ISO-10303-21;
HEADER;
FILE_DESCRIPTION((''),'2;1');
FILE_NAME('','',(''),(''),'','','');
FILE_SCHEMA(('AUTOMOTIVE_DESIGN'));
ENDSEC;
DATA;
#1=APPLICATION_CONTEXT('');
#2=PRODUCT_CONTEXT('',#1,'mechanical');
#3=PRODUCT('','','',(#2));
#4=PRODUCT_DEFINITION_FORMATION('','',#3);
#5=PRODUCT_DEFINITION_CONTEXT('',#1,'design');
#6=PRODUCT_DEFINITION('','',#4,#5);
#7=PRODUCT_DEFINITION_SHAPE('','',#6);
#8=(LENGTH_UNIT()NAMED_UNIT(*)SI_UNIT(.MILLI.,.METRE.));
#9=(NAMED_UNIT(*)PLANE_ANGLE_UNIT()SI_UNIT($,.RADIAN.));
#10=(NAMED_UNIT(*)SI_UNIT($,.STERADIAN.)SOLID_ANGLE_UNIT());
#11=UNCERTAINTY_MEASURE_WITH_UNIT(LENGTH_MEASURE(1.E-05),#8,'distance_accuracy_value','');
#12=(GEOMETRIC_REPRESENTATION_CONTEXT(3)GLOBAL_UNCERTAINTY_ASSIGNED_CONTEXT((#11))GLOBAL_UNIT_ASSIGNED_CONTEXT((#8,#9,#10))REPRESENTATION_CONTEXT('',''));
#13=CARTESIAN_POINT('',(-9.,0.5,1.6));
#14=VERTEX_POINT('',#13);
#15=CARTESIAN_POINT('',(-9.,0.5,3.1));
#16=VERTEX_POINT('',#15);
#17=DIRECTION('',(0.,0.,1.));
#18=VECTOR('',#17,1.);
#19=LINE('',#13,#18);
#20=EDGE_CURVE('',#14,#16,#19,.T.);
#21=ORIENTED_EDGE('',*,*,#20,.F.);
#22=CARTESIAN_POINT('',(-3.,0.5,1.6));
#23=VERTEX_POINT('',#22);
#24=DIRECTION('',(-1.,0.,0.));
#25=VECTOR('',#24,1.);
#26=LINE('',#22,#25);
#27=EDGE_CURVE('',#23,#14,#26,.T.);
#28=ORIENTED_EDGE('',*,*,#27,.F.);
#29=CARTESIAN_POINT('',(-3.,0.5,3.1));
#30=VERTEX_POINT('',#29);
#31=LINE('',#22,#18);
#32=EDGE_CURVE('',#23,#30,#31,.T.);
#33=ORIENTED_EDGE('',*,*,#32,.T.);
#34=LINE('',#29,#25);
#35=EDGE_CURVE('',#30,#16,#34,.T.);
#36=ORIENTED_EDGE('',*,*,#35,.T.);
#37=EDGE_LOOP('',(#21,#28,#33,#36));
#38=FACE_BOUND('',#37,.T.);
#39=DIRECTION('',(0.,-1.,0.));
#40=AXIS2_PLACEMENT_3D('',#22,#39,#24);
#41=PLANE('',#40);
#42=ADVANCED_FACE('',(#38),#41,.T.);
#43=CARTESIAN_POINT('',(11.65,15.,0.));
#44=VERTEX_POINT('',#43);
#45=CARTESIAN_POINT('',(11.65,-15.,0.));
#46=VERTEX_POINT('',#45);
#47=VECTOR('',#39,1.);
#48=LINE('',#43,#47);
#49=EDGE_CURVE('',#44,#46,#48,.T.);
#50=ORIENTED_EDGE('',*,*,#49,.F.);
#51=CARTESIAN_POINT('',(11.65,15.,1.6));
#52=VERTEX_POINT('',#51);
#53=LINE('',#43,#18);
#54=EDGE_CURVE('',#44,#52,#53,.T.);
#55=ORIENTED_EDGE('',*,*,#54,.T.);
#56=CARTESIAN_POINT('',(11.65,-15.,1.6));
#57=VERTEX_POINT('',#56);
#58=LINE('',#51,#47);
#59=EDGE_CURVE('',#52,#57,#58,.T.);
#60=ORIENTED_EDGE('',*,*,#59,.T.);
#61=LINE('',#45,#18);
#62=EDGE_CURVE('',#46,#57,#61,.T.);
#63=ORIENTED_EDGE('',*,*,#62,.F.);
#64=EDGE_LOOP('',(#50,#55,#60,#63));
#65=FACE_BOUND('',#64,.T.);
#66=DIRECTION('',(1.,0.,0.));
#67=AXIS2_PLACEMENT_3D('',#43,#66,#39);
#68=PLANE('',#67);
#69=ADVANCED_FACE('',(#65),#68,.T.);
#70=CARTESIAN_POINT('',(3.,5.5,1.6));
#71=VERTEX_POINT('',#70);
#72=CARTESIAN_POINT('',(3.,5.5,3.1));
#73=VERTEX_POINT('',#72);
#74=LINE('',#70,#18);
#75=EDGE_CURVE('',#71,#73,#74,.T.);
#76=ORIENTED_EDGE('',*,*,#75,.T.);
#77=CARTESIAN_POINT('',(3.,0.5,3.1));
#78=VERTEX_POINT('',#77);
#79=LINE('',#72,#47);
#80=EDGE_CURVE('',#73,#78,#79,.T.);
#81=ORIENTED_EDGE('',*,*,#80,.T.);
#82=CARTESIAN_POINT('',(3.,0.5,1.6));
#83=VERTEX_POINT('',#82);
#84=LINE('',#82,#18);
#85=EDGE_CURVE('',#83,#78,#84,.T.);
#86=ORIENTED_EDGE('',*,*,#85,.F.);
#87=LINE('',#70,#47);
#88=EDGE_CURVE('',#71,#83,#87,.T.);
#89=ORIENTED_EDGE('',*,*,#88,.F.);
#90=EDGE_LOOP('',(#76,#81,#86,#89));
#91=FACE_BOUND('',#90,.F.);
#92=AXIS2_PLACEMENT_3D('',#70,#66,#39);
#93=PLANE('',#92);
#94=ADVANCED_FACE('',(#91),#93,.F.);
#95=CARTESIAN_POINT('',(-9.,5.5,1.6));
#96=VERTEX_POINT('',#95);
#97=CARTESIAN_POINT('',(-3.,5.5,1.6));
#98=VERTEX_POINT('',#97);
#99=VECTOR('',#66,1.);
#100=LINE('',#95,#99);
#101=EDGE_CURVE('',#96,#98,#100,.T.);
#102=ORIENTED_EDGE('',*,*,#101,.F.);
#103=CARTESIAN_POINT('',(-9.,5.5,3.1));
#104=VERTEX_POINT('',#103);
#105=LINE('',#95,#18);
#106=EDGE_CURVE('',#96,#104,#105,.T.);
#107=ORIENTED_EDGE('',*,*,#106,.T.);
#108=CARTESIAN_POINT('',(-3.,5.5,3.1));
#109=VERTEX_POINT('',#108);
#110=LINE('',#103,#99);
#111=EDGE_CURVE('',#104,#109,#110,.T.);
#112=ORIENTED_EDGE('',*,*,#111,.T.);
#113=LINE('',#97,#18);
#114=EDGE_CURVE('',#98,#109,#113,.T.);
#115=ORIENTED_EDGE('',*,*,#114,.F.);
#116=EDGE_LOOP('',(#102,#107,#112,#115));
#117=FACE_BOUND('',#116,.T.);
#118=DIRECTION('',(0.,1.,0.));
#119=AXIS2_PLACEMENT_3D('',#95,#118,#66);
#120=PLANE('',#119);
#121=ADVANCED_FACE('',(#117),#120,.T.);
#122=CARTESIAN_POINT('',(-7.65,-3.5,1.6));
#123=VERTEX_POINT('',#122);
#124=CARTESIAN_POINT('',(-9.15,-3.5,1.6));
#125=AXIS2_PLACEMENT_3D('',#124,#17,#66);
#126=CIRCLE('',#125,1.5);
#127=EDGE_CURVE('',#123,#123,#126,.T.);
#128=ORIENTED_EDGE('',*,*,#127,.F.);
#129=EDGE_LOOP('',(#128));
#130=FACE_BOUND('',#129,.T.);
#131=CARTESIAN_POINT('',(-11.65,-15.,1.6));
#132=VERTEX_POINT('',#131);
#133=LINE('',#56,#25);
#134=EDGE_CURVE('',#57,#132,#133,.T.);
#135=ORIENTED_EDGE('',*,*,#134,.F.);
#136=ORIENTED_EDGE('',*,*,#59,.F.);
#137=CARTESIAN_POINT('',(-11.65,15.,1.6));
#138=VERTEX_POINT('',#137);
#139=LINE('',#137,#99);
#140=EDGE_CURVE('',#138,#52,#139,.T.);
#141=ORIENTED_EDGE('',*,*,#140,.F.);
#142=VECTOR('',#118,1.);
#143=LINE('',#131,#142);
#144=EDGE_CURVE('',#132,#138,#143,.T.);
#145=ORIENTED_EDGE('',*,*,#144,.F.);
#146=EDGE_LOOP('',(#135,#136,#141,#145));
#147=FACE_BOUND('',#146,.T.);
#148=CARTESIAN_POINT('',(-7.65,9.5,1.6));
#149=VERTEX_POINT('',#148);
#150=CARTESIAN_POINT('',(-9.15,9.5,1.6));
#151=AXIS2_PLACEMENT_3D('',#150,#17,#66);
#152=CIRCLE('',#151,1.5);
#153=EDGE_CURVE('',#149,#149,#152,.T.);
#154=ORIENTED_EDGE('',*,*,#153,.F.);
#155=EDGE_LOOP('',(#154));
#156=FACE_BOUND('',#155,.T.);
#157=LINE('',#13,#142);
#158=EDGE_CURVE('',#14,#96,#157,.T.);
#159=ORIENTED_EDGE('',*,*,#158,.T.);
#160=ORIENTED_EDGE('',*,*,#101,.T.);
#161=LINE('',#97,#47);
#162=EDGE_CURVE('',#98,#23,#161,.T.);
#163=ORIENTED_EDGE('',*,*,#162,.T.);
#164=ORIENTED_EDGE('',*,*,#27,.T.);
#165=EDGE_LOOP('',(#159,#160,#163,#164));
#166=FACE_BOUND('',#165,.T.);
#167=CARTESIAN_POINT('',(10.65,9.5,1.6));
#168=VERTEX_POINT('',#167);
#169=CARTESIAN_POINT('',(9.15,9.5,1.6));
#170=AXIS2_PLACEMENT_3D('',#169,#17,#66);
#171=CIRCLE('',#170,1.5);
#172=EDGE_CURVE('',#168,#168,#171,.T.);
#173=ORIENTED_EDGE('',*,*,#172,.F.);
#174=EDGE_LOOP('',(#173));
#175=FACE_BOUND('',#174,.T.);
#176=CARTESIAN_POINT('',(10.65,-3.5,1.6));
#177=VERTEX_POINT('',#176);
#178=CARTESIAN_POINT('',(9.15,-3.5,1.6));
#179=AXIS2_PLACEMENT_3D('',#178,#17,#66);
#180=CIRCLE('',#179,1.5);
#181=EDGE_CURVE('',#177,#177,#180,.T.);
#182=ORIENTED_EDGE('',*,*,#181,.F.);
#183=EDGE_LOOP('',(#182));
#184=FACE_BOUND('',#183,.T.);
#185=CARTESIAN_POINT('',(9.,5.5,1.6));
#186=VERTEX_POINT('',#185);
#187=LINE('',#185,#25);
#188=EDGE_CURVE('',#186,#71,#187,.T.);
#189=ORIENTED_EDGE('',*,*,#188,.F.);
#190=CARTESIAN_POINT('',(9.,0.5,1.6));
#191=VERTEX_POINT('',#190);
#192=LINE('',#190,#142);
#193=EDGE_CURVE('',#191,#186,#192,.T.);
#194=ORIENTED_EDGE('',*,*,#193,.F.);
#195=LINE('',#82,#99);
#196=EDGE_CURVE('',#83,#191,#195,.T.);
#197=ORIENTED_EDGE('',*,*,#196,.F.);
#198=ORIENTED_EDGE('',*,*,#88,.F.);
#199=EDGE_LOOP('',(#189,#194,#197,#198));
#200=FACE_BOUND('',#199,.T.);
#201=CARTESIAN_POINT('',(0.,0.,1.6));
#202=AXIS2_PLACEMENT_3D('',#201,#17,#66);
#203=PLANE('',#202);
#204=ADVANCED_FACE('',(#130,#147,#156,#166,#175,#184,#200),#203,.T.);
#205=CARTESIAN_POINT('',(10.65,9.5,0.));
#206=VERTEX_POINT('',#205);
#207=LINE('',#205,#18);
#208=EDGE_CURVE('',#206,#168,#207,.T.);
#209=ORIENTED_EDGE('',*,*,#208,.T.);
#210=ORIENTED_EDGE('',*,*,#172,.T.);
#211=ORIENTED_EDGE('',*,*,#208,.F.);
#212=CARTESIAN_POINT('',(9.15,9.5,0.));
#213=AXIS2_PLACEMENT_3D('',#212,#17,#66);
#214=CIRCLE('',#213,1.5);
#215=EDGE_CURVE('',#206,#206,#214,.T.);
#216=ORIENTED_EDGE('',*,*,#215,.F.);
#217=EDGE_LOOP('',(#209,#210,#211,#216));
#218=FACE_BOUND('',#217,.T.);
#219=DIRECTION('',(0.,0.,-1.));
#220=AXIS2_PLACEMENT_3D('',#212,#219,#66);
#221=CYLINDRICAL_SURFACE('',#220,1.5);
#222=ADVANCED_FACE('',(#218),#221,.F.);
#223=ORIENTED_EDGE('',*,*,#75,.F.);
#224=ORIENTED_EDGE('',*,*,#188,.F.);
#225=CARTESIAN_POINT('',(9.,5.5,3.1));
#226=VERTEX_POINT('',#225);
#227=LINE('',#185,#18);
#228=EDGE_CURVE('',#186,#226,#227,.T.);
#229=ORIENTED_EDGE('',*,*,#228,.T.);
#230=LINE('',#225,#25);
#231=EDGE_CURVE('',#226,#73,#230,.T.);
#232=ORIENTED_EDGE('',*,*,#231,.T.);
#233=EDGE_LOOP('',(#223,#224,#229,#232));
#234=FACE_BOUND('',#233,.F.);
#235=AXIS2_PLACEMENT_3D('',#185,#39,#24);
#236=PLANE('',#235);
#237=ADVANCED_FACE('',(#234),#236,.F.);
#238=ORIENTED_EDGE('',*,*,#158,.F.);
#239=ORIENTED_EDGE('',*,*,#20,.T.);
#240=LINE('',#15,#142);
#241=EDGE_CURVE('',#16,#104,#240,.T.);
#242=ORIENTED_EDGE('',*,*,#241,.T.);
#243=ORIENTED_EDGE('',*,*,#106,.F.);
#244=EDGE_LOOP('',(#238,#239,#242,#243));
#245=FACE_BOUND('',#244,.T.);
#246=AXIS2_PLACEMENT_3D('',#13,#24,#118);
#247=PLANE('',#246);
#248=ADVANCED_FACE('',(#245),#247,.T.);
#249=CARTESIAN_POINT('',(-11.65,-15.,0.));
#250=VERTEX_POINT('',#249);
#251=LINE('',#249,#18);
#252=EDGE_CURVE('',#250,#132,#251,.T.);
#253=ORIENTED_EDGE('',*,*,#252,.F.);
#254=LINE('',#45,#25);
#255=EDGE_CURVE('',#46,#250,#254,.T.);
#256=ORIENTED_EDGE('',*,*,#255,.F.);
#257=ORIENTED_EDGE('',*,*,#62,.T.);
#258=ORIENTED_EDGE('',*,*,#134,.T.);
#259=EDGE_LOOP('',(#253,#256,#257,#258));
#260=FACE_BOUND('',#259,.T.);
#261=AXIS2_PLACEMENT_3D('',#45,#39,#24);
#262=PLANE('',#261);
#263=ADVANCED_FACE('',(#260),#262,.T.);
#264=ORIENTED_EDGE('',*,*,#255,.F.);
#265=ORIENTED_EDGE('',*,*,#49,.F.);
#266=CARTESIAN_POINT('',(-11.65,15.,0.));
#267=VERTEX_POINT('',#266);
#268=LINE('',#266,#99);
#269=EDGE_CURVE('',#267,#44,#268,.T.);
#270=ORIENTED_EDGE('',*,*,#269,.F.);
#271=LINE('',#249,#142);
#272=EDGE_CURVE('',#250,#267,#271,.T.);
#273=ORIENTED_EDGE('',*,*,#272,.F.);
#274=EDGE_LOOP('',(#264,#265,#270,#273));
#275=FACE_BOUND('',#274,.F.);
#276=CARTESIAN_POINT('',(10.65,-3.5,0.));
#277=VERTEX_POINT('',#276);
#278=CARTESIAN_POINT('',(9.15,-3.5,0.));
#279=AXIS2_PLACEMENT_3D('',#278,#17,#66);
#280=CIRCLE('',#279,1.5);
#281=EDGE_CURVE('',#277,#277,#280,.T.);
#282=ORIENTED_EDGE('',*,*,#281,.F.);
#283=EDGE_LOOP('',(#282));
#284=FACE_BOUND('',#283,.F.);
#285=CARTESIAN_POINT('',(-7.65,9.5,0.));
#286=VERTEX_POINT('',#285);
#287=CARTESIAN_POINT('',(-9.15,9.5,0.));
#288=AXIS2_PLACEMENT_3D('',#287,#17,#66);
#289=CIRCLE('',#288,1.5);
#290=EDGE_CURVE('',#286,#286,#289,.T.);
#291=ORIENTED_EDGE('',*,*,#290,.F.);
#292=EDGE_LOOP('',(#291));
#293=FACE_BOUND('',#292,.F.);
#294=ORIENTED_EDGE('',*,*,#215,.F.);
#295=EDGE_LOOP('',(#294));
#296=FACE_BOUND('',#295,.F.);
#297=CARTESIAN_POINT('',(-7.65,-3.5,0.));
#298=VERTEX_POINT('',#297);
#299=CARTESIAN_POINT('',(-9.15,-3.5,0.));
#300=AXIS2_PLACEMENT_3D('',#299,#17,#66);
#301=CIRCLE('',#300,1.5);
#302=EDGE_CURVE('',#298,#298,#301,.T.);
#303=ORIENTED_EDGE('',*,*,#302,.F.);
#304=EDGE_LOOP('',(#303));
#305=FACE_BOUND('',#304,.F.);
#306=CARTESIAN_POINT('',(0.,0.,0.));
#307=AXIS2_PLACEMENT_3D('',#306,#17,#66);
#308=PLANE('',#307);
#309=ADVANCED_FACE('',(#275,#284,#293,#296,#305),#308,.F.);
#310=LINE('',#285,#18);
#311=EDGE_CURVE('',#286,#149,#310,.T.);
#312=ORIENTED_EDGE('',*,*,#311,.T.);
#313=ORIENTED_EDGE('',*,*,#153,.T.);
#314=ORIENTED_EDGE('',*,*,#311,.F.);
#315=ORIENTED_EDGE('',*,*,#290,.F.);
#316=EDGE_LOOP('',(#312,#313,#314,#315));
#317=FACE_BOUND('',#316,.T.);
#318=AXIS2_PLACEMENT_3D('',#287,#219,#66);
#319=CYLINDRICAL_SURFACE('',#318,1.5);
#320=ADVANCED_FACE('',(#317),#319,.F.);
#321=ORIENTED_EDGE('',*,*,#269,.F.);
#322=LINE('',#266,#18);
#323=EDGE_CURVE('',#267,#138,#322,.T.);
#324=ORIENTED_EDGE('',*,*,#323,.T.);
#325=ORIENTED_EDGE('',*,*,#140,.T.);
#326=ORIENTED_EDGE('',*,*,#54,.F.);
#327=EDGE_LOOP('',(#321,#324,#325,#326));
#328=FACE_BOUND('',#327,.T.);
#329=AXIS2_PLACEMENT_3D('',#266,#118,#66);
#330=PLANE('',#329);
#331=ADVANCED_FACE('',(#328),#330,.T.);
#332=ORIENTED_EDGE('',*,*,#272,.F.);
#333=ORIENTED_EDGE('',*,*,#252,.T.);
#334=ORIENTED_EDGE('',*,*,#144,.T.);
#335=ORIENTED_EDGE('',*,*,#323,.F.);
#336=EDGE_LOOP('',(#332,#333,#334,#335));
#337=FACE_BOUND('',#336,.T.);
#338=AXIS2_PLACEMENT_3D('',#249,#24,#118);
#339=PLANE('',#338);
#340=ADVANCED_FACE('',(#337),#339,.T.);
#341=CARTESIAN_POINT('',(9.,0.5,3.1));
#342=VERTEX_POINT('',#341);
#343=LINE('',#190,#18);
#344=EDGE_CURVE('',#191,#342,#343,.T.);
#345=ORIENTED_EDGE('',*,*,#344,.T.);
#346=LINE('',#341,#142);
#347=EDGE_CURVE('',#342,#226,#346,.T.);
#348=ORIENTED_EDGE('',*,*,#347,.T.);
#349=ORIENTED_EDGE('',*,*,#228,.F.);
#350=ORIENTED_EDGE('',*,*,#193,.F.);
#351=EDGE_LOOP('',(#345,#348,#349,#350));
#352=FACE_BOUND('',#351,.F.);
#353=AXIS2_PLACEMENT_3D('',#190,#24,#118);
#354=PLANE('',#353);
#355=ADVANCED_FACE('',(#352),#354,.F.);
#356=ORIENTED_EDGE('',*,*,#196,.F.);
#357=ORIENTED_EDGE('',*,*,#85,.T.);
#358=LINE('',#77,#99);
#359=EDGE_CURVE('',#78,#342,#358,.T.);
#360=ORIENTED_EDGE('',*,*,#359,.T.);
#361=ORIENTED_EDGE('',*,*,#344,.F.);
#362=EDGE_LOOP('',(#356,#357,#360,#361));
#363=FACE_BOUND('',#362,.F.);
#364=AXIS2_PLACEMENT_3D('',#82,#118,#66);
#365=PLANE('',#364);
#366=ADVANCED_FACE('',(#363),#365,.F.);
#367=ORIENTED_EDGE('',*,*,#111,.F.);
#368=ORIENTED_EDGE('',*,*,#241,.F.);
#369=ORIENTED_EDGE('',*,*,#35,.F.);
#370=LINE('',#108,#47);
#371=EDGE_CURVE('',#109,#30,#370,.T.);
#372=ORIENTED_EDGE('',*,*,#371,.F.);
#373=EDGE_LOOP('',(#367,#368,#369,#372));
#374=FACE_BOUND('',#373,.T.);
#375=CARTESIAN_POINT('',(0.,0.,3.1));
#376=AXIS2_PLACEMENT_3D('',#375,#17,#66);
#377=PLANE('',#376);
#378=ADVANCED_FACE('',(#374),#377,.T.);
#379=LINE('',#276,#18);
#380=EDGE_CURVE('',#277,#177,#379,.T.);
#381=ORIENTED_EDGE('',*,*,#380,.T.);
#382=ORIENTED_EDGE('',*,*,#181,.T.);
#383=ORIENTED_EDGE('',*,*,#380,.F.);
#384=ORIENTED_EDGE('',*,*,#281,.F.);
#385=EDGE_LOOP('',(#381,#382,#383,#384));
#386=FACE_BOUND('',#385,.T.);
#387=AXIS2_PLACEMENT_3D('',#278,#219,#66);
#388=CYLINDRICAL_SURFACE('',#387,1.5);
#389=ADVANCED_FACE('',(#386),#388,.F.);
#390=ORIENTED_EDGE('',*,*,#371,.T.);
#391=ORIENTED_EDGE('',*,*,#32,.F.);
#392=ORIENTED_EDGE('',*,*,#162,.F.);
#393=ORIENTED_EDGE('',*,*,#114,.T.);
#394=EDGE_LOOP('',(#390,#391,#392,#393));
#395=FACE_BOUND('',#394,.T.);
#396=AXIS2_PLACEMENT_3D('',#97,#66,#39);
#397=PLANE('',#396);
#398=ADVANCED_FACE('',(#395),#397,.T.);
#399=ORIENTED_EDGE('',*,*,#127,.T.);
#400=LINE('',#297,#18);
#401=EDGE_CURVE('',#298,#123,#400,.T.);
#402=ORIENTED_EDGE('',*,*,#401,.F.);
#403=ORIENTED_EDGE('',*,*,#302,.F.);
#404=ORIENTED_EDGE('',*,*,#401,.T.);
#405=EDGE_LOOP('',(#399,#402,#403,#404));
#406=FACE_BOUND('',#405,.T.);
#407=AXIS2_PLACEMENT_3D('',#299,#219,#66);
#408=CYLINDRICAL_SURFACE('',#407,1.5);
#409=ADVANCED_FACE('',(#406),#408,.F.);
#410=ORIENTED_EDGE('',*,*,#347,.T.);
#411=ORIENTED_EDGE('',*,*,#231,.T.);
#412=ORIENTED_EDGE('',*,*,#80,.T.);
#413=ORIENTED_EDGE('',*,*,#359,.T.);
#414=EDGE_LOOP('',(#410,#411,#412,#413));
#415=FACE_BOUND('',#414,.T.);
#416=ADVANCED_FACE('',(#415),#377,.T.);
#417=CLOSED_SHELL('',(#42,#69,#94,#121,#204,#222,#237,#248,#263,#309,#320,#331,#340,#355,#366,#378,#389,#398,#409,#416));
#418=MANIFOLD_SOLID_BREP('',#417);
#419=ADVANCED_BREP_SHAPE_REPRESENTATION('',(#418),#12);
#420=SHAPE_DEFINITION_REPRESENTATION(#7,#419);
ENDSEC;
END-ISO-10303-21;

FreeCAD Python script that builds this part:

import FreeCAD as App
import Part
import Sketcher


def add_polygon(sketch, points):
    """Adds a closed chain of lines whose ends are joined by coincident constraints."""
    first, n = sketch.GeometryCount, len(points)
    for a, b in zip(points, points[1:] + points[:1]):
        sketch.addGeometry(Part.LineSegment(App.Vector(*a, 0), App.Vector(*b, 0)), False)
    for i in range(n):
        sketch.addConstraint(Sketcher.Constraint("Coincident", first + i, 2, first + (i + 1) % n, 1))

doc = App.newDocument("Part")
body = doc.addObject("PartDesign::Body", "Body")

sketch1 = doc.addObject("Sketcher::SketchObject", "Sketch")
body.addObject(sketch1)
sketch1.AttachmentSupport = (doc.XY_Plane, [""])
sketch1.MapMode = "FlatFace"
add_polygon(sketch1, [(11.65, 15), (-11.65, 15), (-11.65, -15), (11.65, -15)])
sketch1.addGeometry(Part.Circle(App.Vector(-9.15, -3.5, 0), App.Vector(0, 0, 1), 1.5), False)
sketch1.addGeometry(Part.Circle(App.Vector(9.15, -3.5, 0), App.Vector(0, 0, 1), 1.5), False)
sketch1.addGeometry(Part.Circle(App.Vector(-9.15, 9.5, 0), App.Vector(0, 0, 1), 1.5), False)
sketch1.addGeometry(Part.Circle(App.Vector(9.15, 9.5, 0), App.Vector(0, 0, 1), 1.5), False)
sketch1.addConstraint(Sketcher.Constraint("Horizontal", 0))
sketch1.addConstraint(Sketcher.Constraint("Vertical", 1))
sketch1.addConstraint(Sketcher.Constraint("Horizontal", 2))
sketch1.addConstraint(Sketcher.Constraint("Vertical", 3))
sketch1.addConstraint(Sketcher.Constraint("Equal", 4, 5))
sketch1.addConstraint(Sketcher.Constraint("Equal", 5, 6))
sketch1.addConstraint(Sketcher.Constraint("Equal", 6, 7))
sketch1.addConstraint(Sketcher.Constraint("Symmetric", 0, 2, 2, 2, -1, 1))
sketch1.addConstraint(Sketcher.Constraint("Symmetric", 4, 3, 5, 3, -2))
sketch1.addConstraint(Sketcher.Constraint("Symmetric", 6, 3, 7, 3, -2))
sketch1.addConstraint(Sketcher.Constraint("Vertical", 4, 3, 6, 3))
sketch1.addConstraint(Sketcher.Constraint("Diameter", 4, 3.0))
sketch1.addConstraint(Sketcher.Constraint("DistanceY", 1, 2, 1, 1, 30.0))
sketch1.addConstraint(Sketcher.Constraint("DistanceX", 0, 2, 0, 1, 23.3))
sketch1.addConstraint(Sketcher.Constraint("DistanceY", 4, 3, 6, 3, 13.0))
sketch1.addConstraint(Sketcher.Constraint("DistanceX", 0, 2, 6, 3, 2.5))
sketch1.addConstraint(Sketcher.Constraint("DistanceY", 6, 3, 0, 2, 5.5))
pad1 = doc.addObject("PartDesign::Pad", "Pad")
body.addObject(pad1)
pad1.Profile = sketch1
pad1.Length = 1.6

sketch2 = doc.addObject("Sketcher::SketchObject", "Sketch001")
body.addObject(sketch2)
sketch2.AttachmentSupport = (doc.XY_Plane, [""])
sketch2.MapMode = "FlatFace"
sketch2.AttachmentOffset = App.Placement(App.Vector(0, 0, 1.6), App.Rotation())
add_polygon(sketch2, [(-3, 5.5), (-9, 5.5), (-9, 0.5), (-3, 0.5)])
add_polygon(sketch2, [(9, 0.5), (9, 5.5), (3, 5.5), (3, 0.5)])
sketch2.addConstraint(Sketcher.Constraint("Horizontal", 0))
sketch2.addConstraint(Sketcher.Constraint("Vertical", 1))
sketch2.addConstraint(Sketcher.Constraint("Horizontal", 2))
sketch2.addConstraint(Sketcher.Constraint("Vertical", 3))
sketch2.addConstraint(Sketcher.Constraint("Vertical", 4))
sketch2.addConstraint(Sketcher.Constraint("Horizontal", 5))
sketch2.addConstraint(Sketcher.Constraint("Vertical", 6))
sketch2.addConstraint(Sketcher.Constraint("Horizontal", 7))
sketch2.addConstraint(Sketcher.Constraint("Symmetric", 0, 2, 4, 2, -2))
sketch2.addConstraint(Sketcher.Constraint("Symmetric", 2, 2, 6, 2, -2))
sketch2.addConstraint(Sketcher.Constraint("DistanceX", 0, 2, 0, 1, 6.0))
sketch2.addConstraint(Sketcher.Constraint("DistanceY", 1, 2, 1, 1, 5.0))
sketch2.addConstraint(Sketcher.Constraint("DistanceX", 2, 2, -1, 1, 3.0))
sketch2.addConstraint(Sketcher.Constraint("DistanceY", -1, 1, 0, 2, 5.5))
pad2 = doc.addObject("PartDesign::Pad", "Pad001")
body.addObject(pad2)
pad2.Profile = sketch2
pad2.Length = 1.5

doc.recompute()
